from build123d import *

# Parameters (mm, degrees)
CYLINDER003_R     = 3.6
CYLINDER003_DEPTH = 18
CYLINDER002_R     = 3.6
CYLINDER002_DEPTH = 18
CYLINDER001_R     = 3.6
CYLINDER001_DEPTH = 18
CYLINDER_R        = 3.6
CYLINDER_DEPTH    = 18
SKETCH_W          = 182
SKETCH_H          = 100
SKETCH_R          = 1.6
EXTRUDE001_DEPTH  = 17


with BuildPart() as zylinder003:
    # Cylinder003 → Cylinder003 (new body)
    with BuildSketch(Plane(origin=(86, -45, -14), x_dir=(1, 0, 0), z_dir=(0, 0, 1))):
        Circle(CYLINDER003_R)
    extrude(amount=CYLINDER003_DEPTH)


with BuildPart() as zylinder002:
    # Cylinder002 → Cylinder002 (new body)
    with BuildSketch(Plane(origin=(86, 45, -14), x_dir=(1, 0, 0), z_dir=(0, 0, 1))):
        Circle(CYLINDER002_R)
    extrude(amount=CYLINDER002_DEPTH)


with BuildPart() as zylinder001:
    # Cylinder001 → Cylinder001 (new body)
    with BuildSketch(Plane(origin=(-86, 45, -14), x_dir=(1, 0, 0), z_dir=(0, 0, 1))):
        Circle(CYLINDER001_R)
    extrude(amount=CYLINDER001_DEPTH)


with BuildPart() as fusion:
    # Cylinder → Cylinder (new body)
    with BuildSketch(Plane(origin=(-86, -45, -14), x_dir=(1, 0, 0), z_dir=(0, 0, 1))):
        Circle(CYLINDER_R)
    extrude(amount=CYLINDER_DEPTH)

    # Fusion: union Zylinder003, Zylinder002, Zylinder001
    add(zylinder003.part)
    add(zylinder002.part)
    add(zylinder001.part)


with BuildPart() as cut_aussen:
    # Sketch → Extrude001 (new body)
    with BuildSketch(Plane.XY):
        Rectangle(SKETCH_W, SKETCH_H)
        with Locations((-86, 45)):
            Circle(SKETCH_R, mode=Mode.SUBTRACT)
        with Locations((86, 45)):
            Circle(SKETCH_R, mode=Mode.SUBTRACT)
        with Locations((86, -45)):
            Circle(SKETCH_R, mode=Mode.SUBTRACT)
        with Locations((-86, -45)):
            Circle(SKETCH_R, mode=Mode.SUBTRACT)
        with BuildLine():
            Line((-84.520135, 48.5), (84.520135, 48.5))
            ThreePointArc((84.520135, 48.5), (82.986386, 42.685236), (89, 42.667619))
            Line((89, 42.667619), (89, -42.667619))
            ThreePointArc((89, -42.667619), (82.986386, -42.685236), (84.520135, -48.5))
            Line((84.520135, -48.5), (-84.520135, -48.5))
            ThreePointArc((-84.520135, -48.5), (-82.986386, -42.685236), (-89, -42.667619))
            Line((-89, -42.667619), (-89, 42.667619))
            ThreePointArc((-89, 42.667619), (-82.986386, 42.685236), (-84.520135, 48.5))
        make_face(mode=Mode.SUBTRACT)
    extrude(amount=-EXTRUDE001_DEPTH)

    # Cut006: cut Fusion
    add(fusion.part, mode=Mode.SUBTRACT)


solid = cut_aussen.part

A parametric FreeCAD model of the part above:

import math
import FreeCAD as App
import Part
import Sketcher
Q = App.Units.Quantity

doc = App.newDocument("Part")
body = doc.addObject("PartDesign::Body", "Body")

sketch1 = body.newObject("Sketcher::SketchObject", "Sketch")
sketch1.AttachmentSupport = (doc.getObject("XY_Plane"), [""])
sketch1.MapMode = "FlatFace"
sketch1.AttachmentOffset = App.Placement(App.Vector(0, 0, -14), App.Rotation())
sketch1.addGeometry(Part.Circle(App.Vector(86, -45, 0), App.Vector(0, 0, 1), 3.6), False)
sketch1.addConstraint(Sketcher.Constraint("Diameter", 0, Q("7.2 mm")))
sketch1.addConstraint(Sketcher.Constraint("DistanceX", -1, 1, 0, 3, Q("86 mm")))
sketch1.addConstraint(Sketcher.Constraint("DistanceY", 0, 3, -1, 1, Q("45 mm")))
pad1 = body.newObject("PartDesign::Pad", "Pad")
pad1.Profile = sketch1
pad1.Length = 18
body2 = doc.addObject("PartDesign::Body", "Body001")

sketch2 = body2.newObject("Sketcher::SketchObject", "Sketch001")
sketch2.AttachmentSupport = (doc.getObject("XY_Plane001"), [""])
sketch2.MapMode = "FlatFace"
sketch2.AttachmentOffset = App.Placement(App.Vector(0, 0, -14), App.Rotation())
sketch2.addGeometry(Part.Circle(App.Vector(86, 45, 0), App.Vector(0, 0, 1), 3.6), False)
sketch2.addConstraint(Sketcher.Constraint("Diameter", 0, Q("7.2 mm")))
sketch2.addConstraint(Sketcher.Constraint("DistanceX", -1, 1, 0, 3, Q("86 mm")))
sketch2.addConstraint(Sketcher.Constraint("DistanceY", -1, 1, 0, 3, Q("45 mm")))
pad2 = body2.newObject("PartDesign::Pad", "Pad001")
pad2.Profile = sketch2
pad2.Length = 18
body3 = doc.addObject("PartDesign::Body", "Body002")

sketch3 = body3.newObject("Sketcher::SketchObject", "Sketch002")
sketch3.AttachmentSupport = (doc.getObject("XY_Plane002"), [""])
sketch3.MapMode = "FlatFace"
sketch3.AttachmentOffset = App.Placement(App.Vector(0, 0, -14), App.Rotation())
sketch3.addGeometry(Part.Circle(App.Vector(-86, 45, 0), App.Vector(0, 0, 1), 3.6), False)
sketch3.addConstraint(Sketcher.Constraint("Diameter", 0, Q("7.2 mm")))
sketch3.addConstraint(Sketcher.Constraint("DistanceX", 0, 3, -1, 1, Q("86 mm")))
sketch3.addConstraint(Sketcher.Constraint("DistanceY", -1, 1, 0, 3, Q("45 mm")))
pad3 = body3.newObject("PartDesign::Pad", "Pad002")
pad3.Profile = sketch3
pad3.Length = 18
body4 = doc.addObject("PartDesign::Body", "Body003")
body4.AllowCompound = True

sketch4 = body4.newObject("Sketcher::SketchObject", "Sketch003")
sketch4.AttachmentSupport = (doc.getObject("XY_Plane003"), [""])
sketch4.MapMode = "FlatFace"
sketch4.AttachmentOffset = App.Placement(App.Vector(0, 0, -14), App.Rotation())
sketch4.addGeometry(Part.Circle(App.Vector(-86, -45, 0), App.Vector(0, 0, 1), 3.6), False)
sketch4.addConstraint(Sketcher.Constraint("Diameter", 0, Q("7.2 mm")))
sketch4.addConstraint(Sketcher.Constraint("DistanceX", 0, 3, -1, 1, Q("86 mm")))
sketch4.addConstraint(Sketcher.Constraint("DistanceY", 0, 3, -1, 1, Q("45 mm")))
pad4 = body4.newObject("PartDesign::Pad", "Pad003")
pad4.Profile = sketch4
pad4.Length = 18
doc.recompute()

boolean = body4.newObject("PartDesign::Boolean", "Boolean")
boolean.Type = "Fuse"
boolean.addObjects([body])
doc.recompute()

boolean2 = body4.newObject("PartDesign::Boolean", "Boolean001")
boolean2.Type = "Fuse"
boolean2.addObjects([body2])
doc.recompute()

boolean3 = body4.newObject("PartDesign::Boolean", "Boolean002")
boolean3.Type = "Fuse"
boolean3.addObjects([body3])
body5 = doc.addObject("PartDesign::Body", "Body004")

sketch5 = body5.newObject("Sketcher::SketchObject", "Sketch004")
sketch5.AttachmentSupport = (doc.getObject("XY_Plane004"), [""])
sketch5.MapMode = "FlatFace"
sketch5.addGeometry(Part.LineSegment(App.Vector(-91, 50, 0), App.Vector(-91, -50, 0)), False)
sketch5.addGeometry(Part.LineSegment(App.Vector(-91, -50, 0), App.Vector(91, -50, 0)), False)
sketch5.addGeometry(Part.LineSegment(App.Vector(91, -50, 0), App.Vector(91, 50, 0)), False)
sketch5.addGeometry(Part.LineSegment(App.Vector(91, 50, 0), App.Vector(-91, 50, 0)), False)
sketch5.addGeometry(Part.Circle(App.Vector(-86, -45, 0), App.Vector(0, 0, 1), 1.6), False)
sketch5.addGeometry(Part.Circle(App.Vector(86, -45, 0), App.Vector(0, 0, 1), 1.6), False)
sketch5.addGeometry(Part.Circle(App.Vector(-86, 45, 0), App.Vector(0, 0, 1), 1.6), False)
sketch5.addGeometry(Part.ArcOfCircle(Part.Circle(App.Vector(-86, 45, 0), App.Vector(0, 0, 1), 3.8), math.radians(-142), math.radians(67)), False)
sketch5.addGeometry(Part.LineSegment(App.Vector(-84.5, 48.5, 0), App.Vector(84.5, 48.5, 0)), False)
sketch5.addGeometry(Part.ArcOfCircle(Part.Circle(App.Vector(86, 45, 0), App.Vector(0, 0, 1), 3.8), math.radians(113), math.radians(322)), False)
sketch5.addGeometry(Part.LineSegment(App.Vector(89, 42.7, 0), App.Vector(89, -42.7, 0)), False)
sketch5.addGeometry(Part.ArcOfCircle(Part.Circle(App.Vector(86, -45, 0), App.Vector(0, 0, 1), 3.8), math.radians(38), math.radians(247)), False)
sketch5.addGeometry(Part.LineSegment(App.Vector(84.5, -48.5, 0), App.Vector(-84.5, -48.5, 0)), False)
sketch5.addGeometry(Part.ArcOfCircle(Part.Circle(App.Vector(-86, -45, 0), App.Vector(0, 0, 1), 3.8), math.radians(-67), math.radians(142)), False)
sketch5.addGeometry(Part.LineSegment(App.Vector(-89, -42.7, 0), App.Vector(-89, 42.7, 0)), False)
sketch5.addGeometry(Part.Circle(App.Vector(86, 45, 0), App.Vector(0, 0, 1), 1.6), False)
sketch5.addConstraint(Sketcher.Constraint("Coincident", 0, 2, 1, 1))
sketch5.addConstraint(Sketcher.Constraint("Coincident", 1, 2, 2, 1))
sketch5.addConstraint(Sketcher.Constraint("Coincident", 2, 2, 3, 1))
sketch5.addConstraint(Sketcher.Constraint("Coincident", 3, 2, 0, 1))
sketch5.addConstraint(Sketcher.Constraint("Coincident", 7, 2, 8, 1))
sketch5.addConstraint(Sketcher.Constraint("Coincident", 8, 2, 9, 1))
sketch5.addConstraint(Sketcher.Constraint("Coincident", 9, 2, 10, 1))
sketch5.addConstraint(Sketcher.Constraint("Coincident", 10, 2, 11, 1))
sketch5.addConstraint(Sketcher.Constraint("Coincident", 11, 2, 12, 1))
sketch5.addConstraint(Sketcher.Constraint("Coincident", 12, 2, 13, 1))
sketch5.addConstraint(Sketcher.Constraint("Coincident", 13, 2, 14, 1))
sketch5.addConstraint(Sketcher.Constraint("Coincident", 14, 2, 7, 1))
sketch5.addConstraint(Sketcher.Constraint("Vertical", 0))
sketch5.addConstraint(Sketcher.Constraint("Horizontal", 1))
sketch5.addConstraint(Sketcher.Constraint("Vertical", 2))
sketch5.addConstraint(Sketcher.Constraint("Horizontal", 3))
sketch5.addConstraint(Sketcher.Constraint("Horizontal", 8))
sketch5.addConstraint(Sketcher.Constraint("Vertical", 10))
sketch5.addConstraint(Sketcher.Constraint("Horizontal", 12))
sketch5.addConstraint(Sketcher.Constraint("Vertical", 14))
sketch5.addConstraint(Sketcher.Constraint("Coincident", 7, 3, 6, 3))
sketch5.addConstraint(Sketcher.Constraint("Coincident", 11, 3, 5, 3))
sketch5.addConstraint(Sketcher.Constraint("Coincident", 13, 3, 4, 3))
sketch5.addConstraint(Sketcher.Constraint("Coincident", 15, 3, 9, 3))
sketch5.addConstraint(Sketcher.Constraint("Equal", 4, 5))
sketch5.addConstraint(Sketcher.Constraint("Equal", 5, 6))
sketch5.addConstraint(Sketcher.Constraint("Equal", 7, 9))
sketch5.addConstraint(Sketcher.Constraint("Equal", 9, 11))
sketch5.addConstraint(Sketcher.Constraint("Equal", 11, 13))
sketch5.addConstraint(Sketcher.Constraint("Equal", 6, 15))
sketch5.addConstraint(Sketcher.Constraint("Symmetric", 5, 3, 6, 3, -1, 1))
sketch5.addConstraint(Sketcher.Constraint("Symmetric", 4, 3, 9, 3, -1, 1))
sketch5.addConstraint(Sketcher.Constraint("Symmetric", 0, 2, 2, 2, -1, 1))
sketch5.addConstraint(Sketcher.Constraint("Symmetric", 4, 3, 5, 3, -2))
sketch5.addConstraint(Sketcher.Constraint("Horizontal", 10, 2, 13, 2))
sketch5.addConstraint(Sketcher.Constraint("Vertical", 8, 2, 11, 2))
sketch5.addConstraint(Sketcher.Constraint("Diameter", 4, Q("3.2 mm")))
sketch5.addConstraint(Sketcher.Constraint("Radius", 7, Q("3.8 mm")))
sketch5.addConstraint(Sketcher.Constraint("DistanceX", 1, 1, 1, 2, Q("182 mm")))
sketch5.addConstraint(Sketcher.Constraint("DistanceY", 0, 2, 0, 1, Q("100 mm")))
sketch5.addConstraint(Sketcher.Constraint("DistanceX", 4, 3, -1, 1, Q("86 mm")))
sketch5.addConstraint(Sketcher.Constraint("DistanceY", 4, 3, -1, 1, Q("45 mm")))
sketch5.addConstraint(Sketcher.Constraint("DistanceX", -1, 1, 9, 2, Q("89 mm")))
sketch5.addConstraint(Sketcher.Constraint("DistanceY", -1, 1, 7, 2, Q("48.5 mm")))
pad5 = body5.newObject("PartDesign::Pad", "Pad004")
pad5.Profile = sketch5
pad5.Length = 17
pad5.Reversed = True
doc.recompute()

boolean4 = body5.newObject("PartDesign::Boolean", "Boolean003")
boolean4.Type = "Cut"
boolean4.addObjects([body4])

doc.recompute()
